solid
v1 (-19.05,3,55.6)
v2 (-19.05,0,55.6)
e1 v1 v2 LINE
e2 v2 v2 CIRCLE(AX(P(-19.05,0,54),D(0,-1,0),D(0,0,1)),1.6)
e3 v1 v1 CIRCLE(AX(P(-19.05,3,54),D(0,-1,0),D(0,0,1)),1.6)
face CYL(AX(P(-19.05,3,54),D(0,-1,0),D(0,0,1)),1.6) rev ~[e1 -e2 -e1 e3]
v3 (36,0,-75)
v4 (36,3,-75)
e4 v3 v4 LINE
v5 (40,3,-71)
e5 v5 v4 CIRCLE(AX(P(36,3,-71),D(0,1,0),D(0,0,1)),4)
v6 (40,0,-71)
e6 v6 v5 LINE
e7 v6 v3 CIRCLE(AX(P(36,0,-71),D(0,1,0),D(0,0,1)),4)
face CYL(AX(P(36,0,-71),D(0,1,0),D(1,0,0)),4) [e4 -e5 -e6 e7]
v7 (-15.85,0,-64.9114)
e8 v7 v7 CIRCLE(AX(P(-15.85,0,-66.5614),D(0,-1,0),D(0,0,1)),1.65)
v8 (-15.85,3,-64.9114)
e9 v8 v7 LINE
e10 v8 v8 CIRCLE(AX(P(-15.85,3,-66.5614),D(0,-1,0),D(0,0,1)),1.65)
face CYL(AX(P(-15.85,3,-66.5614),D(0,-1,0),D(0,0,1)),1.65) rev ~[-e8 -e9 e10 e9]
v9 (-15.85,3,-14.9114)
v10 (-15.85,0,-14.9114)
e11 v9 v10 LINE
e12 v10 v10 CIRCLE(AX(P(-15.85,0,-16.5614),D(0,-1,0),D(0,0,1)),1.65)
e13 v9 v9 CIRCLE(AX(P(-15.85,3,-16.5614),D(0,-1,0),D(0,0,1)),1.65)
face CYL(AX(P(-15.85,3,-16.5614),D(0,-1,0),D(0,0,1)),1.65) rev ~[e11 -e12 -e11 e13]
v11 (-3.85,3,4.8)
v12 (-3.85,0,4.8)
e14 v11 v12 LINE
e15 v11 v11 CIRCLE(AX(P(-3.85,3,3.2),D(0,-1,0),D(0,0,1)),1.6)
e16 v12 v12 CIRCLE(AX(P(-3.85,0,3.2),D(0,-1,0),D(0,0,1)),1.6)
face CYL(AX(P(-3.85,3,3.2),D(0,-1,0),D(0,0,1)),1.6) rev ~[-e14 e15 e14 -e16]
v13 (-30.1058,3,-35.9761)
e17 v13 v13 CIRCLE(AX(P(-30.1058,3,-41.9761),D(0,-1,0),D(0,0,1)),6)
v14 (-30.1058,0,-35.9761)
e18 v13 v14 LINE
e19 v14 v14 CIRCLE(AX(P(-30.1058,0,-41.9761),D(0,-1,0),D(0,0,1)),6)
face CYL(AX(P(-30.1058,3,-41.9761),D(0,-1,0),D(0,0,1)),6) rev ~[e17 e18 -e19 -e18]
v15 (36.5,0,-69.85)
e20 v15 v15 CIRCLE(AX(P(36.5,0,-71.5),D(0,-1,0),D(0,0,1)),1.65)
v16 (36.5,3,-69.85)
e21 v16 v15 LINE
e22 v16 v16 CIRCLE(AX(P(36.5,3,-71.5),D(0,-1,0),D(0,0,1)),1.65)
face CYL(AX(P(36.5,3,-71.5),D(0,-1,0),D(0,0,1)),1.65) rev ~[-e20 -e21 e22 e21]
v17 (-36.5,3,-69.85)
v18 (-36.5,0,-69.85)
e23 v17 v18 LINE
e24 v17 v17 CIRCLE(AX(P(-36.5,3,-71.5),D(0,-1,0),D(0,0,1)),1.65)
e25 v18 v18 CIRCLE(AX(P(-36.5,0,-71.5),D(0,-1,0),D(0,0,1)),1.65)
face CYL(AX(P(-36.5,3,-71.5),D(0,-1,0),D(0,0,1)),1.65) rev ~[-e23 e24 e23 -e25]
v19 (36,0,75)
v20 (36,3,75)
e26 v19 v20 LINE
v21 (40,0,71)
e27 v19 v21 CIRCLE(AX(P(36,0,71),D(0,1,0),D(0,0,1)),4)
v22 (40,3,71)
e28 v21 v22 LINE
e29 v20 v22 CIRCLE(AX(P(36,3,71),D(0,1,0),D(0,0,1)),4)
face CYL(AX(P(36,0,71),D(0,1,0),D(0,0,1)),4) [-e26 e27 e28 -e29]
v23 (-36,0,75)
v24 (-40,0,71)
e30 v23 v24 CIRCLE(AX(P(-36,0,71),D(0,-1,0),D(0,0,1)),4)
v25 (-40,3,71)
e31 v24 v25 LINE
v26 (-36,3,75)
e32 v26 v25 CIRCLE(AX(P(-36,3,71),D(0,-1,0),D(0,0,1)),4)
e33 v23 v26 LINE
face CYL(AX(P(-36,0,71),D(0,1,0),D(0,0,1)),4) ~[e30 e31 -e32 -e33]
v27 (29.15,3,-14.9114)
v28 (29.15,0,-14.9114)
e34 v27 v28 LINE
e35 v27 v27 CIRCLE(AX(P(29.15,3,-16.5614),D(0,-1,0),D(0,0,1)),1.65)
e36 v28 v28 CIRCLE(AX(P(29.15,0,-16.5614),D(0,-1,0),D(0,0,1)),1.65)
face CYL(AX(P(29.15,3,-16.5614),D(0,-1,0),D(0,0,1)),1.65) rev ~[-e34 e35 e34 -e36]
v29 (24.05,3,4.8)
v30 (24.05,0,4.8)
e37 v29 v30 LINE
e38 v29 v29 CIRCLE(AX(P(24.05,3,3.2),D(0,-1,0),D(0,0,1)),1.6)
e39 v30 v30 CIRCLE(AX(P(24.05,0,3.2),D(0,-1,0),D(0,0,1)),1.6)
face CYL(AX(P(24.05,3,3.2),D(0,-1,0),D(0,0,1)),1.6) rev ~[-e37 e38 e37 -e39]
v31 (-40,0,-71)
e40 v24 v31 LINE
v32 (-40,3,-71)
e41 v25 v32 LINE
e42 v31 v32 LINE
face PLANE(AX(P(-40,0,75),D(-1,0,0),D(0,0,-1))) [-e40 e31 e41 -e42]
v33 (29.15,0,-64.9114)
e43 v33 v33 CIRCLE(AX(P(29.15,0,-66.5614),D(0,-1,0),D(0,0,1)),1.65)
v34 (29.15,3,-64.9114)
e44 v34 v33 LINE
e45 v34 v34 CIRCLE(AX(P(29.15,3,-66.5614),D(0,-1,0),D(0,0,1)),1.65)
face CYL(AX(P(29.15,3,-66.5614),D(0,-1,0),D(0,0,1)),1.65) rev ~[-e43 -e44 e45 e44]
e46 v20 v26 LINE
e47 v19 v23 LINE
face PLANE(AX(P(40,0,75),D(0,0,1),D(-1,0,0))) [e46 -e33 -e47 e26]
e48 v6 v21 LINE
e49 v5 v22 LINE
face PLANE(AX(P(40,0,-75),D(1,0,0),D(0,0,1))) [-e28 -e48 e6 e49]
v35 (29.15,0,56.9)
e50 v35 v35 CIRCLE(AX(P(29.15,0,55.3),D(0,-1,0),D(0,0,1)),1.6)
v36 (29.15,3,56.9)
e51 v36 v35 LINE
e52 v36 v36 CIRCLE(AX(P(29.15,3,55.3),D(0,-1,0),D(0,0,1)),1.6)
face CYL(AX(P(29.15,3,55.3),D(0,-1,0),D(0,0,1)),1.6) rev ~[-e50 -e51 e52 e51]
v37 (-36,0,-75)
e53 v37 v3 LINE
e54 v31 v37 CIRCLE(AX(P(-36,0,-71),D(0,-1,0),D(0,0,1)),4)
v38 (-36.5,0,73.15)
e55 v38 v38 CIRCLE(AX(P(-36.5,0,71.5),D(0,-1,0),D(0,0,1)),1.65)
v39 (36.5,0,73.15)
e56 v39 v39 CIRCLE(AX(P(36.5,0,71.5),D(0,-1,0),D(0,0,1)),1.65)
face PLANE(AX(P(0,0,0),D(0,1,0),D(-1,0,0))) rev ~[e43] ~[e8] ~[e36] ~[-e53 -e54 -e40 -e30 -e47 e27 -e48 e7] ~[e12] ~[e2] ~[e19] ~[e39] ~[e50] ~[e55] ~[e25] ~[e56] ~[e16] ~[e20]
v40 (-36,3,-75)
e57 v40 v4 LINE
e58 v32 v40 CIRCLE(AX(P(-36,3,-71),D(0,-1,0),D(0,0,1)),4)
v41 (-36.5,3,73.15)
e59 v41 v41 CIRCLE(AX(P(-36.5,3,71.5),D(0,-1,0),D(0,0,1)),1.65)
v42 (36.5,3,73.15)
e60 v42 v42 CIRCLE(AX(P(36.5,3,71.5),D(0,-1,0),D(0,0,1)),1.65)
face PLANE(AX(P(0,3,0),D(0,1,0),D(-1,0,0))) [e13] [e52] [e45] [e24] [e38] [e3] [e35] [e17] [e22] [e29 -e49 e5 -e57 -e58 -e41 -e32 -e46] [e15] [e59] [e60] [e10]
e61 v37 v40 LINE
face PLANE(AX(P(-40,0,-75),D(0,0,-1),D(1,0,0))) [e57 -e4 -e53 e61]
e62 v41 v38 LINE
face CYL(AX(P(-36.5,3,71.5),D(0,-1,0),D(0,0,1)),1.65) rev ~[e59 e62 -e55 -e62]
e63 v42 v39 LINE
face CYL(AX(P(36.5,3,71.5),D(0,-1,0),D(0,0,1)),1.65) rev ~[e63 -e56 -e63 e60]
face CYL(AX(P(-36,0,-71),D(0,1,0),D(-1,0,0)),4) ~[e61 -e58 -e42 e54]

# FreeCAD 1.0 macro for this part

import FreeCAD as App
import Part
import Sketcher


def edges_at(feature, points):
    """Names of the edges that pass closest to the given points."""
    edges = feature.Shape.Edges
    near = lambda p: min(range(len(edges)), key=lambda i: edges[i].distToShape(Part.Vertex(*p))[0])
    return sorted({f"Edge{near(p) + 1}" for p in points})


def add_polygon(sketch, points):
    """Adds a closed chain of lines whose ends are joined by coincident constraints."""
    first, n = sketch.GeometryCount, len(points)
    for a, b in zip(points, points[1:] + points[:1]):
        sketch.addGeometry(Part.LineSegment(App.Vector(*a, 0), App.Vector(*b, 0)), False)
    for i in range(n):
        sketch.addConstraint(Sketcher.Constraint("Coincident", first + i, 2, first + (i + 1) % n, 1))

doc = App.newDocument("Part")
params = doc.addObject("Spreadsheet::Sheet", "Params")
for row, (alias, value) in enumerate([
    ("sketch1_width", "80 mm"),
    ("sketch1_height", "150 mm"),
    ("pad1_length", "3 mm"),
    ("sketch2_diameter", "3.2 mm"),
    ("hole_diameter", "3.2 mm"),
    ("sketch3_diameter", "3.3 mm"),
    ("hole2_diameter", "3.3 mm"),
    ("fillet_radius", "4 mm"),
    ("sketch4_diameter", "3.3 mm"),
    ("hole3_diameter", "3.3 mm"),
    ("sketch5_diameter", "12 mm"),
    ("hole4_diameter", "12 mm"),
], start=1):
    params.set(f"A{row}", alias)
    params.set(f"B{row}", "=" + value)
    params.setAlias(f"B{row}", alias)

body = doc.addObject("PartDesign::Body", "Body")

sketch1 = body.newObject("Sketcher::SketchObject", "Sketch")
sketch1.AttachmentSupport = (doc.getObject("XZ_Plane"), [""])
sketch1.MapMode = "FlatFace"
add_polygon(sketch1, [(-40, 75), (40, 75), (40, -75), (-40, -75)])
sketch1.addConstraint(Sketcher.Constraint("Horizontal", 0))
sketch1.addConstraint(Sketcher.Constraint("Vertical", 1))
sketch1.addConstraint(Sketcher.Constraint("Horizontal", 2))
sketch1.addConstraint(Sketcher.Constraint("Vertical", 3))
sketch1.addConstraint(Sketcher.Constraint("Symmetric", 0, 2, 2, 2, -1, 1))
sketch1.addConstraint(Sketcher.Constraint("DistanceX", 0, 1, 0, 2, 80.0))
sketch1.addConstraint(Sketcher.Constraint("DistanceY", 1, 2, 1, 1, 150.0))
sketch1.setExpression("Constraints[9]", "Params.sketch1_width")
sketch1.setExpression("Constraints[10]", "Params.sketch1_height")
pad1 = body.newObject("PartDesign::Pad", "Pad")
pad1.Profile = sketch1
pad1.setExpression("Length", "Params.pad1_length")
pad1.Reversed = True

sketch2 = body.newObject("Sketcher::SketchObject", "Sketch001")
sketch2.AttachmentSupport = (doc.getObject("XZ_Plane"), [""])
sketch2.MapMode = "FlatFace"
sketch2.AttachmentOffset = App.Placement(App.Vector(0, 0, -3), App.Rotation())
sketch2.addGeometry(Part.Circle(App.Vector(-19.1, 54, 0), App.Vector(0, 0, 1), 1.6), False)
sketch2.addGeometry(Part.Circle(App.Vector(29.1, 55.3, 0), App.Vector(0, 0, 1), 1.6), False)
sketch2.addGeometry(Part.Circle(App.Vector(24.1, 3.2, 0), App.Vector(0, 0, 1), 1.6), False)
sketch2.addGeometry(Part.Circle(App.Vector(-3.9, 3.2, 0), App.Vector(0, 0, 1), 1.6), False)
sketch2.addConstraint(Sketcher.Constraint("Equal", 0, 1))
sketch2.addConstraint(Sketcher.Constraint("Equal", 1, 2))
sketch2.addConstraint(Sketcher.Constraint("Equal", 2, 3))
sketch2.addConstraint(Sketcher.Constraint("Horizontal", 2, 3, 3, 3))
sketch2.addConstraint(Sketcher.Constraint("Diameter", 0, 3.2))
sketch2.addConstraint(Sketcher.Constraint("DistanceY", -1, 1, 0, 3, 54.0))
sketch2.addConstraint(Sketcher.Constraint("DistanceX", 3, 3, 1, 3, 33.0))
sketch2.addConstraint(Sketcher.Constraint("DistanceY", -1, 1, 1, 3, 55.3))
sketch2.addConstraint(Sketcher.Constraint("DistanceY", -1, 1, 2, 3, 3.2))
sketch2.addConstraint(Sketcher.Constraint("DistanceX", 0, 3, 1, 3, 48.2))
sketch2.addConstraint(Sketcher.Constraint("DistanceX", 2, 3, 1, 3, 5.1))
sketch2.addConstraint(Sketcher.Constraint("DistanceX", 0, 3, -1, 1, 19.05))
sketch2.setExpression("Constraints[4]", "Params.sketch2_diameter")
doc.recompute()
hole = body.newObject("PartDesign::Hole", "Hole")
hole.Profile = sketch2
hole.ThreadType = "None"
hole.setExpression("Diameter", "Params.hole_diameter")
hole.DepthType = "ThroughAll"
hole.Reversed = True

sketch3 = body.newObject("Sketcher::SketchObject", "Sketch002")
sketch3.AttachmentSupport = (doc.getObject("XZ_Plane"), [""])
sketch3.MapMode = "FlatFace"
sketch3.AttachmentOffset = App.Placement(App.Vector(0, 0, -3), App.Rotation())
sketch3.addGeometry(Part.Circle(App.Vector(-15.8, -16.6, 0), App.Vector(0, 0, 1), 1.6), False)
sketch3.addGeometry(Part.Circle(App.Vector(-15.8, -66.6, 0), App.Vector(0, 0, 1), 1.6), False)
sketch3.addGeometry(Part.Circle(App.Vector(29.1, -16.6, 0), App.Vector(0, 0, 1), 1.6), False)
sketch3.addGeometry(Part.Circle(App.Vector(29.1, -66.6, 0), App.Vector(0, 0, 1), 1.6), False)
sketch3.addConstraint(Sketcher.Constraint("Equal", 0, 1))
sketch3.addConstraint(Sketcher.Constraint("Equal", 1, 2))
sketch3.addConstraint(Sketcher.Constraint("Equal", 2, 3))
sketch3.addConstraint(Sketcher.Constraint("Horizontal", 0, 3, 2, 3))
sketch3.addConstraint(Sketcher.Constraint("Horizontal", 1, 3, 3, 3))
sketch3.addConstraint(Sketcher.Constraint("Vertical", 0, 3, 1, 3))
sketch3.addConstraint(Sketcher.Constraint("Vertical", 2, 3, 3, 3))
sketch3.addConstraint(Sketcher.Constraint("Diameter", 0, 3.3))
sketch3.addConstraint(Sketcher.Constraint("DistanceY", 1, 3, 0, 3, 50.0))
sketch3.addConstraint(Sketcher.Constraint("DistanceX", 0, 3, 2, 3, 45.0))
sketch3.addConstraint(Sketcher.Constraint("DistanceX", 0, 3, -1, 1, 15.85))
sketch3.addConstraint(Sketcher.Constraint("DistanceY", 0, 3, -1, 1, 16.5614))
sketch3.setExpression("Constraints[7]", "Params.sketch3_diameter")
doc.recompute()
hole2 = body.newObject("PartDesign::Hole", "Hole001")
hole2.Profile = sketch3
hole2.ThreadType = "None"
hole2.setExpression("Diameter", "Params.hole2_diameter")
hole2.DepthType = "ThroughAll"
hole2.Reversed = True
doc.recompute()

fillet = body.newObject("PartDesign::Fillet", "Fillet")
fillet.Base = (hole2, edges_at(hole2, [
    (40, 1.5, 75),
    (-40, 1.5, 75),
    (40, 1.5, -75),
    (-40, 1.5, -75),
]))
fillet.setExpression("Radius", "Params.fillet_radius")

sketch4 = body.newObject("Sketcher::SketchObject", "Sketch003")
sketch4.AttachmentSupport = (doc.getObject("XZ_Plane"), [""])
sketch4.MapMode = "FlatFace"
sketch4.AttachmentOffset = App.Placement(App.Vector(0, 0, -3), App.Rotation())
sketch4.addGeometry(Part.Circle(App.Vector(-36.5, 71.5, 0), App.Vector(0, 0, 1), 1.6), False)
sketch4.addGeometry(Part.Circle(App.Vector(36.5, 71.5, 0), App.Vector(0, 0, 1), 1.6), False)
sketch4.addGeometry(Part.Circle(App.Vector(36.5, -71.5, 0), App.Vector(0, 0, 1), 1.6), False)
sketch4.addGeometry(Part.Circle(App.Vector(-36.5, -71.5, 0), App.Vector(0, 0, 1), 1.6), False)
sketch4.addConstraint(Sketcher.Constraint("Equal", 0, 1))
sketch4.addConstraint(Sketcher.Constraint("Equal", 1, 2))
sketch4.addConstraint(Sketcher.Constraint("Equal", 2, 3))
sketch4.addConstraint(Sketcher.Constraint("Symmetric", 0, 3, 2, 3, -1, 1))
sketch4.addConstraint(Sketcher.Constraint("Symmetric", 1, 3, 3, 3, -1, 1))
sketch4.addConstraint(Sketcher.Constraint("Symmetric", 0, 3, 1, 3, -2))
sketch4.addConstraint(Sketcher.Constraint("Diameter", 0, 3.3))
sketch4.addConstraint(Sketcher.Constraint("DistanceX", 0, 3, 1, 3, 73.0))
sketch4.addConstraint(Sketcher.Constraint("DistanceY", 2, 3, 1, 3, 143.0))
sketch4.setExpression("Constraints[6]", "Params.sketch4_diameter")
doc.recompute()
hole3 = body.newObject("PartDesign::Hole", "Hole002")
hole3.Profile = sketch4
hole3.ThreadType = "None"
hole3.setExpression("Diameter", "Params.hole3_diameter")
hole3.DepthType = "ThroughAll"
hole3.Reversed = True

sketch5 = body.newObject("Sketcher::SketchObject", "Sketch004")
sketch5.AttachmentSupport = (doc.getObject("XZ_Plane"), [""])
sketch5.MapMode = "FlatFace"
sketch5.AttachmentOffset = App.Placement(App.Vector(0, 0, -3), App.Rotation())
sketch5.addGeometry(Part.Circle(App.Vector(-30, -42, 0), App.Vector(0, 0, 1), 6), False)
sketch5.addConstraint(Sketcher.Constraint("Diameter", 0, 12.0))
sketch5.addConstraint(Sketcher.Constraint("DistanceY", 0, 3, -1, 1, 41.976))
sketch5.addConstraint(Sketcher.Constraint("DistanceX", 0, 3, -1, 1, 30.1058))
sketch5.setExpression("Constraints[0]", "Params.sketch5_diameter")
doc.recompute()
hole4 = body.newObject("PartDesign::Hole", "Hole003")
hole4.Profile = sketch5
hole4.ThreadType = "None"
hole4.setExpression("Diameter", "Params.hole4_diameter")
hole4.DepthType = "ThroughAll"
hole4.Reversed = True

doc.recompute()
